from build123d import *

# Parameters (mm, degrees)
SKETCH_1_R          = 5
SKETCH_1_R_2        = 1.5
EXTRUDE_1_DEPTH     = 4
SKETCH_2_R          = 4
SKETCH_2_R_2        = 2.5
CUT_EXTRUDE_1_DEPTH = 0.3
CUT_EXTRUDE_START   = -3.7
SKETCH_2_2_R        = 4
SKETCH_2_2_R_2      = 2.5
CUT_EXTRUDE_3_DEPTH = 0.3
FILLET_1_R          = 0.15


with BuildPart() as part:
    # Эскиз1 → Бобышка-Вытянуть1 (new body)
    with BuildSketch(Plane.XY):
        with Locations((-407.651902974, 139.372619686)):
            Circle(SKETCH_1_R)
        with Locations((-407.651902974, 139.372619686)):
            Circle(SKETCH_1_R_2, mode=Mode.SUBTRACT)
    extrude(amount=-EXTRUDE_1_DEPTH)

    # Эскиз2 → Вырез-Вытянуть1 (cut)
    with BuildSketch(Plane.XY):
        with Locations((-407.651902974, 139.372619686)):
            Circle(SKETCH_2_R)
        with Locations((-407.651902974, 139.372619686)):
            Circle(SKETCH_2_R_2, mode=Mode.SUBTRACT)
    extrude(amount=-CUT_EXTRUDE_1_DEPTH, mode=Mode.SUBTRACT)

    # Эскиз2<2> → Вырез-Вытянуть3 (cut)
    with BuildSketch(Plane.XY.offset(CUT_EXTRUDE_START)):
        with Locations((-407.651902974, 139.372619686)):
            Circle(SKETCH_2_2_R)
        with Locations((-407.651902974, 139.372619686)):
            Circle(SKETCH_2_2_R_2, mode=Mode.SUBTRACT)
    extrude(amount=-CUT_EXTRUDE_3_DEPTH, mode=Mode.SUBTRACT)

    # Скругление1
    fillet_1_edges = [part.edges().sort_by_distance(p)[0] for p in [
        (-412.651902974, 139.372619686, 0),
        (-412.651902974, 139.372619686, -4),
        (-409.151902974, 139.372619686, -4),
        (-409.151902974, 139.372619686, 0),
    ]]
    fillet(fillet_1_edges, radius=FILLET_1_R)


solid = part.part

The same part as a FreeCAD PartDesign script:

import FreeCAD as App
import Part
import Sketcher

V = App.Vector


def edges_at(feature, points):
    """Names of the edges that pass closest to the given points."""
    edges = feature.Shape.Edges
    near = lambda p: min(range(len(edges)), key=lambda i: edges[i].distToShape(Part.Vertex(*p))[0])
    return sorted({f"Edge{near(p) + 1}" for p in points})

doc = App.newDocument("Part")
body = doc.addObject("PartDesign::Body", "Body")

sketch1 = body.newObject("Sketcher::SketchObject", "Sketch")
sketch1.AttachmentSupport = (doc.getObject("XY_Plane"), [""])
sketch1.MapMode = "FlatFace"
sketch1.addGeometry([
    Part.Circle(V(-407.7, 139.4, 0), V(0, 0, 1), 5),
    Part.Circle(V(-407.7, 139.4, 0), V(0, 0, 1), 1.5),
], False)
sketch1.addConstraint([
    Sketcher.Constraint("Coincident", 1, 3, 0, 3),
    Sketcher.Constraint("Diameter", 0, 10.0),
    Sketcher.Constraint("Diameter", 1, 3.0),
    Sketcher.Constraint("DistanceY", -1, 1, 0, 3, 139.37262),
    Sketcher.Constraint("DistanceX", 0, 3, -1, 1, 407.651903),
])
pad1 = body.newObject("PartDesign::Pad", "Pad")
pad1.Profile = sketch1
pad1.Length = 4
pad1.Reversed = True

sketch2 = body.newObject("Sketcher::SketchObject", "Sketch001")
sketch2.AttachmentSupport = (doc.getObject("XY_Plane"), [""])
sketch2.MapMode = "FlatFace"
sketch2.addGeometry([
    Part.Circle(V(-407.7, 139.4, 0), V(0, 0, 1), 4),
    Part.Circle(V(-407.7, 139.4, 0), V(0, 0, 1), 2.5),
], False)
sketch2.addConstraint([
    Sketcher.Constraint("Coincident", 1, 3, 0, 3),
    Sketcher.Constraint("Diameter", 0, 8.0),
    Sketcher.Constraint("Diameter", 1, 5.0),
    Sketcher.Constraint("DistanceY", -1, 1, 0, 3, 139.37262),
    Sketcher.Constraint("DistanceX", 0, 3, -1, 1, 407.651903),
])
pocket1 = body.newObject("PartDesign::Pocket", "Pocket")
pocket1.Profile = sketch2
pocket1.Length = 0.3

sketch3 = body.newObject("Sketcher::SketchObject", "Sketch002")
sketch3.AttachmentSupport = (doc.getObject("XY_Plane"), [""])
sketch3.MapMode = "FlatFace"
sketch3.AttachmentOffset = App.Placement(V(0, 0, -3.7), App.Rotation())
sketch3.addGeometry([
    Part.Circle(V(-407.7, 139.4, 0), V(0, 0, 1), 4),
    Part.Circle(V(-407.7, 139.4, 0), V(0, 0, 1), 2.5),
], False)
sketch3.addConstraint([
    Sketcher.Constraint("Coincident", 1, 3, 0, 3),
    Sketcher.Constraint("Diameter", 0, 8.0),
    Sketcher.Constraint("Diameter", 1, 5.0),
    Sketcher.Constraint("DistanceY", -1, 1, 0, 3, 139.37262),
    Sketcher.Constraint("DistanceX", 0, 3, -1, 1, 407.651903),
])
pocket2 = body.newObject("PartDesign::Pocket", "Pocket001")
pocket2.Profile = sketch3
pocket2.Length = 0.3
doc.recompute()

fillet = body.newObject("PartDesign::Fillet", "Fillet")
fillet.Base = (pocket2, edges_at(pocket2, [
    (-412.652, 139.373, 0),
    (-412.652, 139.373, -4),
    (-409.152, 139.373, -4),
    (-409.152, 139.373, 0),
]))
fillet.Radius = 0.15

doc.recompute()
